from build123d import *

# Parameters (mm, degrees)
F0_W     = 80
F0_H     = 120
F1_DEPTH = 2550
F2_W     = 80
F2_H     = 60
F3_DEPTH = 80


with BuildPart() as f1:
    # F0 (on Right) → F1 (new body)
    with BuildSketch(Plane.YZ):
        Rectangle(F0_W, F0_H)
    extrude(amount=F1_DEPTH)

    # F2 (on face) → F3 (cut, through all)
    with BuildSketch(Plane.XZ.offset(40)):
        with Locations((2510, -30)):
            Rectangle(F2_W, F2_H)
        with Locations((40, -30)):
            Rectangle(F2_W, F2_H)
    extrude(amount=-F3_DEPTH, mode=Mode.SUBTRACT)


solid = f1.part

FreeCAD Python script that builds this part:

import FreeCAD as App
import Part
import Sketcher
from FreeCAD import Vector

doc = App.newDocument("Part")
params = doc.addObject("Spreadsheet::Sheet", "Params")
for row, (alias, value) in enumerate([
    ("sketch1_width", "80 mm"),
    ("sketch1_height", "120 mm"),
    ("pad1_length", "2550 mm"),
    ("sketch2_width", "80 mm"),
    ("sketch2_height", "60 mm"),
], start=1):
    params.set(f"A{row}", alias)
    params.set(f"B{row}", "=" + value)
    params.setAlias(f"B{row}", alias)

body = doc.addObject("PartDesign::Body", "Body")

# Sketch on YZ plane
sketch1 = doc.addObject("Sketcher::SketchObject", "Sketch")
body.addObject(sketch1)
sketch1.AttachmentSupport = (doc.YZ_Plane, [""])
sketch1.MapMode = "FlatFace"
sketch1.addGeometry(Part.LineSegment(Vector(-40, 60, 0), Vector(-40, -60, 0)), False)
sketch1.addGeometry(Part.LineSegment(Vector(-40, -60, 0), Vector(40, -60, 0)), False)
sketch1.addGeometry(Part.LineSegment(Vector(40, -60, 0), Vector(40, 60, 0)), False)
sketch1.addGeometry(Part.LineSegment(Vector(40, 60, 0), Vector(-40, 60, 0)), False)
sketch1.addConstraint(Sketcher.Constraint("Coincident", 0, 2, 1, 1))
sketch1.addConstraint(Sketcher.Constraint("Coincident", 1, 2, 2, 1))
sketch1.addConstraint(Sketcher.Constraint("Coincident", 2, 2, 3, 1))
sketch1.addConstraint(Sketcher.Constraint("Coincident", 3, 2, 0, 1))
sketch1.addConstraint(Sketcher.Constraint("Vertical", 0))
sketch1.addConstraint(Sketcher.Constraint("Horizontal", 1))
sketch1.addConstraint(Sketcher.Constraint("Vertical", 2))
sketch1.addConstraint(Sketcher.Constraint("Horizontal", 3))
sketch1.addConstraint(Sketcher.Constraint("Symmetric", 0, 2, 2, 2, -1, 1))
sketch1.addConstraint(Sketcher.Constraint("DistanceX", 1, 1, 1, 2, 80.0))
sketch1.addConstraint(Sketcher.Constraint("DistanceY", 0, 2, 0, 1, 120.0))
sketch1.setExpression("Constraints[9]", "Params.sketch1_width")
sketch1.setExpression("Constraints[10]", "Params.sketch1_height")
pad1 = doc.addObject("PartDesign::Pad", "Pad")
body.addObject(pad1)
pad1.Profile = sketch1
pad1.setExpression("Length", "Params.pad1_length")

# Sketch on XZ plane
sketch2 = doc.addObject("Sketcher::SketchObject", "Sketch001")
body.addObject(sketch2)
sketch2.AttachmentSupport = (doc.XZ_Plane, [""])
sketch2.MapMode = "FlatFace"
sketch2.AttachmentOffset = App.Placement(Vector(0, 0, 40), App.Rotation())
sketch2.addGeometry(Part.LineSegment(Vector(2470, 0, 0), Vector(2470, -60, 0)), False)
sketch2.addGeometry(Part.LineSegment(Vector(2470, -60, 0), Vector(2550, -60, 0)), False)
sketch2.addGeometry(Part.LineSegment(Vector(2550, -60, 0), Vector(2550, 0, 0)), False)
sketch2.addGeometry(Part.LineSegment(Vector(2550, 0, 0), Vector(2470, 0, 0)), False)
sketch2.addGeometry(Part.LineSegment(Vector(0, 0, 0), Vector(0, -60, 0)), False)
sketch2.addGeometry(Part.LineSegment(Vector(0, -60, 0), Vector(80, -60, 0)), False)
sketch2.addGeometry(Part.LineSegment(Vector(80, -60, 0), Vector(80, 0, 0)), False)
sketch2.addGeometry(Part.LineSegment(Vector(80, 0, 0), Vector(0, 0, 0)), False)
sketch2.addConstraint(Sketcher.Constraint("Coincident", 0, 2, 1, 1))
sketch2.addConstraint(Sketcher.Constraint("Coincident", 1, 2, 2, 1))
sketch2.addConstraint(Sketcher.Constraint("Coincident", 2, 2, 3, 1))
sketch2.addConstraint(Sketcher.Constraint("Coincident", 3, 2, 0, 1))
sketch2.addConstraint(Sketcher.Constraint("Coincident", 4, 2, 5, 1))
sketch2.addConstraint(Sketcher.Constraint("Coincident", 5, 2, 6, 1))
sketch2.addConstraint(Sketcher.Constraint("Coincident", 6, 2, 7, 1))
sketch2.addConstraint(Sketcher.Constraint("Coincident", 7, 2, 4, 1))
sketch2.addConstraint(Sketcher.Constraint("Vertical", 0))
sketch2.addConstraint(Sketcher.Constraint("Horizontal", 1))
sketch2.addConstraint(Sketcher.Constraint("Vertical", 2))
sketch2.addConstraint(Sketcher.Constraint("Horizontal", 3))
sketch2.addConstraint(Sketcher.Constraint("Vertical", 4))
sketch2.addConstraint(Sketcher.Constraint("Horizontal", 5))
sketch2.addConstraint(Sketcher.Constraint("Vertical", 6))
sketch2.addConstraint(Sketcher.Constraint("Horizontal", 7))
sketch2.addConstraint(Sketcher.Constraint("Coincident", 7, 2, -1, 1))
sketch2.addConstraint(Sketcher.Constraint("PointOnObject", 2, 2, -1))
sketch2.addConstraint(Sketcher.Constraint("Horizontal", 1, 2, 4, 2))
sketch2.addConstraint(Sketcher.Constraint("Equal", 3, 5))
sketch2.addConstraint(Sketcher.Constraint("DistanceX", 1, 1, 1, 2, 80.0))
sketch2.addConstraint(Sketcher.Constraint("DistanceY", 0, 2, 0, 1, 60.0))
sketch2.addConstraint(Sketcher.Constraint("DistanceX", -1, 1, 0, 2, 2470.0))
sketch2.setExpression("Constraints[20]", "Params.sketch2_width")
sketch2.setExpression("Constraints[21]", "Params.sketch2_height")
pocket1 = doc.addObject("PartDesign::Pocket", "Pocket")
body.addObject(pocket1)
pocket1.Profile = sketch2
pocket1.Type = "ThroughAll"

doc.recompute()
